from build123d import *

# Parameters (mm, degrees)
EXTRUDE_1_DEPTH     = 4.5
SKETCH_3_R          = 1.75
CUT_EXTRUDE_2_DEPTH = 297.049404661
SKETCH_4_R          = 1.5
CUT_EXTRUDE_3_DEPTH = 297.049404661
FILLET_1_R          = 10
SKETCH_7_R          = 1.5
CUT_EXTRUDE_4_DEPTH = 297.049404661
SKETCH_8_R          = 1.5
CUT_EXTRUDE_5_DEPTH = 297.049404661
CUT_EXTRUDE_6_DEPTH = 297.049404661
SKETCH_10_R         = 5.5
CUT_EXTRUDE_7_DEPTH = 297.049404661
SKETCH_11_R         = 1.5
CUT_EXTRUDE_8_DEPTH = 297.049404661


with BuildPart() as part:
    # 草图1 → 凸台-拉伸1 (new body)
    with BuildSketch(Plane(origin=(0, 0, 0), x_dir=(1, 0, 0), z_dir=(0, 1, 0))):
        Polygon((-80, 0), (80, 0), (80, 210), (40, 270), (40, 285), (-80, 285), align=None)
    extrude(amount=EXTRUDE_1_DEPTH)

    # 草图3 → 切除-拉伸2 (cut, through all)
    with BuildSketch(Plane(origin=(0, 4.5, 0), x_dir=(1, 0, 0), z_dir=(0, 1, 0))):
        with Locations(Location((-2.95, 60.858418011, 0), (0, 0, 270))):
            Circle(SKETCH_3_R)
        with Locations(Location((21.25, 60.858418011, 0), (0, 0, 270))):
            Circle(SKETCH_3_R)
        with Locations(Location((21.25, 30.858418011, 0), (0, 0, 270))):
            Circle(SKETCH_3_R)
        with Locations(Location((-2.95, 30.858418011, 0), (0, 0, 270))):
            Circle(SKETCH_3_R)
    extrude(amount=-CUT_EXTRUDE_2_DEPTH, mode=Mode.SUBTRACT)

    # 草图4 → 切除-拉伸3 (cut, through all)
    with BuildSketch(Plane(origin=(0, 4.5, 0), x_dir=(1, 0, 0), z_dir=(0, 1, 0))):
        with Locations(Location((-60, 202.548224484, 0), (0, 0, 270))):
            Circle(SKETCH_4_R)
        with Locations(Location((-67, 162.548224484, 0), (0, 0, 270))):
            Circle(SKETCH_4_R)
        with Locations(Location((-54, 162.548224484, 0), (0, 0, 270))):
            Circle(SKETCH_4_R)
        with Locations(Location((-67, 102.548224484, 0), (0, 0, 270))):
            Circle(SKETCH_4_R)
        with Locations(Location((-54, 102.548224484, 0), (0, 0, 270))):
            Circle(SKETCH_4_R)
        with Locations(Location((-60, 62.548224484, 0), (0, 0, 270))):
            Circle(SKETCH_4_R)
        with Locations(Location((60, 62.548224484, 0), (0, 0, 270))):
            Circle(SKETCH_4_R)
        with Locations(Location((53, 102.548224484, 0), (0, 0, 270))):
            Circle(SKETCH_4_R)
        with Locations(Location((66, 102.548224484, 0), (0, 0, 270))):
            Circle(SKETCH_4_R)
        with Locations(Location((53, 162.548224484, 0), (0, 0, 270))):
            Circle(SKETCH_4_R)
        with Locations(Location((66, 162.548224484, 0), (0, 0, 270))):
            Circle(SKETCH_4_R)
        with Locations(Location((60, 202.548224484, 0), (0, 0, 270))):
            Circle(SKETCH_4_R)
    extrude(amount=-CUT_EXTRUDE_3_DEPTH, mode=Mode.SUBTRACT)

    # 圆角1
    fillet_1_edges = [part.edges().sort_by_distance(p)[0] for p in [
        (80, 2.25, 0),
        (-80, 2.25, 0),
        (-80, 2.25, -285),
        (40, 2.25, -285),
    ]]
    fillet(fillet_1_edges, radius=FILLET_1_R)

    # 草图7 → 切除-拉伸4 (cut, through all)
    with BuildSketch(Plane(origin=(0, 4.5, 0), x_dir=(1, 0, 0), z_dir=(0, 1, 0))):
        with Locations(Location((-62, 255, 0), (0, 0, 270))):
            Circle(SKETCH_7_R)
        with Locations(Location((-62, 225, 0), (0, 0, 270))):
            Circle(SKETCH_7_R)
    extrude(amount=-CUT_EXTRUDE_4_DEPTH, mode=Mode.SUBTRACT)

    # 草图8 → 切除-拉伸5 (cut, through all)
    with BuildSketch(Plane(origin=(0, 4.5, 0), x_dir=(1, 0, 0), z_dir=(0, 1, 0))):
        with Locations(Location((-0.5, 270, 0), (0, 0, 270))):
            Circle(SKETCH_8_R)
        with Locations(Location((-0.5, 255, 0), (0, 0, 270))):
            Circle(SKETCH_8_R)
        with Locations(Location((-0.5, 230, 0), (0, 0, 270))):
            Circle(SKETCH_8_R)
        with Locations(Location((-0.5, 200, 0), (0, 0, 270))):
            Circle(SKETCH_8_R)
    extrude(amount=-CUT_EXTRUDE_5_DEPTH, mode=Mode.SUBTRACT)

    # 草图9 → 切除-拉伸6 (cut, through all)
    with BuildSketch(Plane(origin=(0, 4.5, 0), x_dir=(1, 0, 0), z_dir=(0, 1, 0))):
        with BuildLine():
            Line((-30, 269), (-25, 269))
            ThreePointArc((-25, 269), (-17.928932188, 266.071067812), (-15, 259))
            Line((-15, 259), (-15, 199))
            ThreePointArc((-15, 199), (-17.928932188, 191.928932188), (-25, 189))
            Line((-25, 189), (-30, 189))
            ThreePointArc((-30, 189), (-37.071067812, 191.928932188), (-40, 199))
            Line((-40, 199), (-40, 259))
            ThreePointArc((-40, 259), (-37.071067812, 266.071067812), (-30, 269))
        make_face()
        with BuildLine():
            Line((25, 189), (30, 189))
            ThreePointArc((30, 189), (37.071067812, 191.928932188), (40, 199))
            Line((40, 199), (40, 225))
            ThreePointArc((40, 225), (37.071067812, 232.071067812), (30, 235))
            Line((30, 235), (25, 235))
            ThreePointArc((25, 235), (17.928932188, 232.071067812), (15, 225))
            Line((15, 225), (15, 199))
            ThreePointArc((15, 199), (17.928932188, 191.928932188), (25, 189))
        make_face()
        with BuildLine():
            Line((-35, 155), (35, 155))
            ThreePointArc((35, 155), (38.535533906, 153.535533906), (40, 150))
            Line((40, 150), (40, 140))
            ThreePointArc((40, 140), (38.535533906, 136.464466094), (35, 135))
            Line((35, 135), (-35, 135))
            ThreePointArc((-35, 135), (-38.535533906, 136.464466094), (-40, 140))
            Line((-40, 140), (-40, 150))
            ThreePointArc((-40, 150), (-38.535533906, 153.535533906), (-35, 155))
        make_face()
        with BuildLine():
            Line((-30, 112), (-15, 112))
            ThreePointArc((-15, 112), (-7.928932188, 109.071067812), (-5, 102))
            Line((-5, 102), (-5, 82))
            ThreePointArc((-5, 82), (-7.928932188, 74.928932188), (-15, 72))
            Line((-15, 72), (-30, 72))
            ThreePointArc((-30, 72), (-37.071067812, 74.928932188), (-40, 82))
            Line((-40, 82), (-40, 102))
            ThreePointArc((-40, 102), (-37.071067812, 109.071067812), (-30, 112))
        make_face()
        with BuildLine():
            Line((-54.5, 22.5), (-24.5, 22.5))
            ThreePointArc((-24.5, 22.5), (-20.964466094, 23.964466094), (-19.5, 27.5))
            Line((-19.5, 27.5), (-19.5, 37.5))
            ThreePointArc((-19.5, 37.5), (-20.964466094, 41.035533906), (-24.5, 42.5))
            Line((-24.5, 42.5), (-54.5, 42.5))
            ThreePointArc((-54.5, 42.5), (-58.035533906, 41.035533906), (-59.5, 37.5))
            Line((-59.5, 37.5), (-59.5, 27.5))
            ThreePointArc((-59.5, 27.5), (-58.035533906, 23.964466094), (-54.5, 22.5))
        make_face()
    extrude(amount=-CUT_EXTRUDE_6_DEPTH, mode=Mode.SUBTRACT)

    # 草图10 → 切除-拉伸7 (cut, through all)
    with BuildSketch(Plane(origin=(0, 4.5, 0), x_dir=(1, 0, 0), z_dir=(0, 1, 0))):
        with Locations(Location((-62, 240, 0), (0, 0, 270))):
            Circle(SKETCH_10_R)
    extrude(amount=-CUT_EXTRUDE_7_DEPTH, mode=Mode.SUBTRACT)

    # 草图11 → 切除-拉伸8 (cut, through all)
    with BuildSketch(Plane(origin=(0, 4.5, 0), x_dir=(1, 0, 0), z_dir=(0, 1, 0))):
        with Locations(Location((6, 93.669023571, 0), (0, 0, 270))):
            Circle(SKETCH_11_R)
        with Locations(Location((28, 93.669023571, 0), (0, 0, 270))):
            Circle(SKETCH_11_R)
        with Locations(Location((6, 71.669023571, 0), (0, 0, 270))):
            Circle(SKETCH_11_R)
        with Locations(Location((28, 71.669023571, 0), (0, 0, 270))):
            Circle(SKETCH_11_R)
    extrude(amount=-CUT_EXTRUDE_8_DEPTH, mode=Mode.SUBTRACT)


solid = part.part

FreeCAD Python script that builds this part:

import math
import FreeCAD as App
import Part
import Sketcher

V = App.Vector


def edges_at(feature, points):
    """Names of the edges that pass closest to the given points."""
    edges = feature.Shape.Edges
    near = lambda p: min(range(len(edges)), key=lambda i: edges[i].distToShape(Part.Vertex(*p))[0])
    return sorted({f"Edge{near(p) + 1}" for p in points})


def add_polygon(sketch, points):
    """Adds a closed chain of lines whose ends are joined by coincident constraints."""
    first, n = sketch.GeometryCount, len(points)
    for a, b in zip(points, points[1:] + points[:1]):
        sketch.addGeometry(Part.LineSegment(App.Vector(*a, 0), App.Vector(*b, 0)), False)
    for i in range(n):
        sketch.addConstraint(Sketcher.Constraint("Coincident", first + i, 2, first + (i + 1) % n, 1))

doc = App.newDocument("Part")
body = doc.addObject("PartDesign::Body", "Body")

# Sketch on XZ plane
sketch1 = body.newObject("Sketcher::SketchObject", "Sketch")
sketch1.AttachmentSupport = (doc.getObject("XZ_Plane"), [""])
sketch1.MapMode = "FlatFace"
add_polygon(sketch1, [(-80, 0), (80, 0), (80, -210), (40, -270), (40, -285), (-80, -285)])  # lines 0-5
sketch1.addConstraint([
    Sketcher.Constraint("Horizontal", 0),
    Sketcher.Constraint("Vertical", 1),
    Sketcher.Constraint("Vertical", 3),
    Sketcher.Constraint("Horizontal", 4),
    Sketcher.Constraint("Vertical", 5),
    Sketcher.Constraint("Symmetric", 0, 2, 5, 2, -1, 1),
    Sketcher.Constraint("DistanceX", 0, 1, 0, 2, 160.0),
    Sketcher.Constraint("DistanceX", 4, 2, 4, 1, 120.0),
    Sketcher.Constraint("DistanceY", 1, 2, 1, 1, 210.0),
    Sketcher.Constraint("DistanceY", 3, 2, 3, 1, 15.0),
    Sketcher.Constraint("DistanceY", 5, 1, 5, 2, 285.0),
])
pad1 = body.newObject("PartDesign::Pad", "Pad")
pad1.Profile = sketch1
pad1.Length = 4.5
pad1.Reversed = True

# Sketch on XZ plane
sketch2 = body.newObject("Sketcher::SketchObject", "Sketch001")
sketch2.AttachmentSupport = (doc.getObject("XZ_Plane"), [""])
sketch2.MapMode = "FlatFace"
sketch2.AttachmentOffset = App.Placement(V(0, 0, -4.5), App.Rotation())
sketch2.addGeometry([
    Part.Circle(V(-2.95, -60.858418, 0), V(0, 0, 1), 1.75),
    Part.Circle(V(21.25, -60.858418, 0), V(0, 0, 1), 1.75),
    Part.Circle(V(21.25, -30.858418, 0), V(0, 0, 1), 1.75),
    Part.Circle(V(-2.95, -30.858418, 0), V(0, 0, 1), 1.75),
], False)
sketch2.addConstraint([
    Sketcher.Constraint("Equal", 0, 1),
    Sketcher.Constraint("Equal", 1, 2),
    Sketcher.Constraint("Equal", 2, 3),
    Sketcher.Constraint("Horizontal", 0, 3, 1, 3),
    Sketcher.Constraint("Horizontal", 2, 3, 3, 3),
    Sketcher.Constraint("Vertical", 1, 3, 2, 3),
    Sketcher.Constraint("Vertical", 0, 3, 3, 3),
    Sketcher.Constraint("Diameter", 0, 3.5),
    Sketcher.Constraint("DistanceY", 1, 3, 2, 3, 30.0),
    Sketcher.Constraint("DistanceX", 0, 3, 1, 3, 24.2),
    Sketcher.Constraint("DistanceX", 0, 3, -1, 1, 2.95),
    Sketcher.Constraint("DistanceY", 0, 3, -1, 1, 60.858418),
])
pocket1 = body.newObject("PartDesign::Pocket", "Pocket")
pocket1.Profile = sketch2
pocket1.Type = "ThroughAll"
pocket1.Reversed = True

# Sketch on XZ plane
sketch3 = body.newObject("Sketcher::SketchObject", "Sketch002")
sketch3.AttachmentSupport = (doc.getObject("XZ_Plane"), [""])
sketch3.MapMode = "FlatFace"
sketch3.AttachmentOffset = App.Placement(V(0, 0, -4.5), App.Rotation())
sketch3.addGeometry([
    Part.Circle(V(-60, -202.548224, 0), V(0, 0, 1), 1.5),  # 0
    Part.Circle(V(-67, -162.548224, 0), V(0, 0, 1), 1.5),  # 1
    Part.Circle(V(-54, -162.548224, 0), V(0, 0, 1), 1.5),  # 2
    Part.Circle(V(-67, -102.548224, 0), V(0, 0, 1), 1.5),  # 3
    Part.Circle(V(-54, -102.548224, 0), V(0, 0, 1), 1.5),  # 4
    Part.Circle(V(-60, -62.548224, 0), V(0, 0, 1), 1.5),  # 5
    Part.Circle(V(60, -62.548224, 0), V(0, 0, 1), 1.5),  # 6
    Part.Circle(V(53, -102.548224, 0), V(0, 0, 1), 1.5),  # 7
    Part.Circle(V(66, -102.548224, 0), V(0, 0, 1), 1.5),  # 8
    Part.Circle(V(53, -162.548224, 0), V(0, 0, 1), 1.5),  # 9
    Part.Circle(V(66, -162.548224, 0), V(0, 0, 1), 1.5),  # 10
    Part.Circle(V(60, -202.548224, 0), V(0, 0, 1), 1.5),  # 11
], False)
sketch3.addConstraint([
    Sketcher.Constraint("Equal", 0, 1),
    Sketcher.Constraint("Equal", 1, 2),
    Sketcher.Constraint("Equal", 2, 3),
    Sketcher.Constraint("Equal", 3, 4),
    Sketcher.Constraint("Equal", 4, 5),
    Sketcher.Constraint("Equal", 5, 6),
    Sketcher.Constraint("Equal", 6, 7),
    Sketcher.Constraint("Equal", 7, 8),
    Sketcher.Constraint("Equal", 8, 9),
    Sketcher.Constraint("Equal", 9, 10),
    Sketcher.Constraint("Equal", 10, 11),
    Sketcher.Constraint("Symmetric", 5, 3, 6, 3, -2),
    Sketcher.Constraint("Symmetric", 0, 3, 11, 3, -2),
    Sketcher.Constraint("Horizontal", 1, 3, 2, 3),
    Sketcher.Constraint("Horizontal", 3, 3, 4, 3),
    Sketcher.Constraint("Horizontal", 4, 3, 7, 3),
    Sketcher.Constraint("Horizontal", 7, 3, 8, 3),
    Sketcher.Constraint("Horizontal", 2, 3, 9, 3),
    Sketcher.Constraint("Horizontal", 9, 3, 10, 3),
    Sketcher.Constraint("Vertical", 1, 3, 3, 3),
    Sketcher.Constraint("Vertical", 2, 3, 4, 3),
    Sketcher.Constraint("Vertical", 0, 3, 5, 3),
    Sketcher.Constraint("Vertical", 7, 3, 9, 3),
    Sketcher.Constraint("Vertical", 8, 3, 10, 3),
    Sketcher.Constraint("Diameter", 0, 3.0),
    Sketcher.Constraint("DistanceX", 0, 3, -1, 1, 60.0),
    Sketcher.Constraint("DistanceX", 1, 3, -1, 1, 67.0),
    Sketcher.Constraint("DistanceX", 2, 3, -1, 1, 54.0),
    Sketcher.Constraint("DistanceX", -1, 1, 7, 3, 53.0),
    Sketcher.Constraint("DistanceX", -1, 1, 8, 3, 66.0),
    Sketcher.Constraint("DistanceY", 0, 3, 1, 3, 40.0),
    Sketcher.Constraint("DistanceY", 1, 3, 3, 3, 60.0),
    Sketcher.Constraint("DistanceY", 4, 3, 5, 3, 40.0),
    Sketcher.Constraint("DistanceY", 0, 3, -1, 1, 202.548224),
])
pocket2 = body.newObject("PartDesign::Pocket", "Pocket001")
pocket2.Profile = sketch3
pocket2.Type = "ThroughAll"
pocket2.Reversed = True
doc.recompute()

fillet = body.newObject("PartDesign::Fillet", "Fillet")
fillet.Base = (pocket2, edges_at(pocket2, [
    (80, 2.25, 0),
    (-80, 2.25, 0),
    (-80, 2.25, -285),
    (40, 2.25, -285),
]))
fillet.Radius = 10

# Sketch on XZ plane
sketch4 = body.newObject("Sketcher::SketchObject", "Sketch003")
sketch4.AttachmentSupport = (doc.getObject("XZ_Plane"), [""])
sketch4.MapMode = "FlatFace"
sketch4.AttachmentOffset = App.Placement(V(0, 0, -4.5), App.Rotation())
sketch4.addGeometry([
    Part.Circle(V(-62, -255, 0), V(0, 0, 1), 1.5),
    Part.Circle(V(-62, -225, 0), V(0, 0, 1), 1.5),
], False)
sketch4.addConstraint([
    Sketcher.Constraint("Equal", 0, 1),
    Sketcher.Constraint("Vertical", 0, 3, 1, 3),
    Sketcher.Constraint("Diameter", 0, 3.0),
    Sketcher.Constraint("DistanceX", 0, 3, -1, 1, 62.0),
    Sketcher.Constraint("DistanceY", 0, 3, -1, 1, 255.0),
    Sketcher.Constraint("DistanceY", 1, 3, -1, 1, 225.0),
])
pocket3 = body.newObject("PartDesign::Pocket", "Pocket002")
pocket3.Profile = sketch4
pocket3.Type = "ThroughAll"
pocket3.Reversed = True

# Sketch on XZ plane
sketch5 = body.newObject("Sketcher::SketchObject", "Sketch004")
sketch5.AttachmentSupport = (doc.getObject("XZ_Plane"), [""])
sketch5.MapMode = "FlatFace"
sketch5.AttachmentOffset = App.Placement(V(0, 0, -4.5), App.Rotation())
sketch5.addGeometry([
    Part.Circle(V(-0.5, -270, 0), V(0, 0, 1), 1.5),
    Part.Circle(V(-0.5, -255, 0), V(0, 0, 1), 1.5),
    Part.Circle(V(-0.5, -230, 0), V(0, 0, 1), 1.5),
    Part.Circle(V(-0.5, -200, 0), V(0, 0, 1), 1.5),
], False)
sketch5.addConstraint([
    Sketcher.Constraint("Equal", 0, 1),
    Sketcher.Constraint("Equal", 1, 2),
    Sketcher.Constraint("Equal", 2, 3),
    Sketcher.Constraint("Vertical", 0, 3, 1, 3),
    Sketcher.Constraint("Vertical", 1, 3, 2, 3),
    Sketcher.Constraint("Vertical", 2, 3, 3, 3),
    Sketcher.Constraint("Diameter", 0, 3.0),
    Sketcher.Constraint("DistanceY", 0, 3, -1, 1, 270.0),
    Sketcher.Constraint("DistanceY", 1, 3, -1, 1, 255.0),
    Sketcher.Constraint("DistanceY", 2, 3, -1, 1, 230.0),
    Sketcher.Constraint("DistanceY", 3, 3, -1, 1, 200.0),
    Sketcher.Constraint("DistanceX", 0, 3, -1, 1, 0.5),
])
pocket4 = body.newObject("PartDesign::Pocket", "Pocket003")
pocket4.Profile = sketch5
pocket4.Type = "ThroughAll"
pocket4.Reversed = True

# Sketch on XZ plane
sketch6 = body.newObject("Sketcher::SketchObject", "Sketch005")
sketch6.AttachmentSupport = (doc.getObject("XZ_Plane"), [""])
sketch6.MapMode = "FlatFace"
sketch6.AttachmentOffset = App.Placement(V(0, 0, -4.5), App.Rotation())
sketch6.addGeometry([
    Part.LineSegment(V(-25, -269, 0), V(-30, -269, 0)),  # 0
    Part.ArcOfCircle(Part.Circle(V(-30, -259, 0), V(0, 0, 1), 10), math.radians(180), math.radians(270)),  # 1
    Part.LineSegment(V(-40, -259, 0), V(-40, -199, 0)),  # 2
    Part.ArcOfCircle(Part.Circle(V(-30, -199, 0), V(0, 0, 1), 10), math.radians(90), math.radians(180)),  # 3
    Part.LineSegment(V(-30, -189, 0), V(-25, -189, 0)),  # 4
    Part.ArcOfCircle(Part.Circle(V(-25, -199, 0), V(0, 0, 1), 10), math.radians(0), math.radians(90)),  # 5
    Part.LineSegment(V(-15, -199, 0), V(-15, -259, 0)),  # 6
    Part.ArcOfCircle(Part.Circle(V(-25, -259, 0), V(0, 0, 1), 10), math.radians(-90), math.radians(0)),  # 7
    Part.LineSegment(V(25, -189, 0), V(30, -189, 0)),  # 8
    Part.ArcOfCircle(Part.Circle(V(30, -199, 0), V(0, 0, 1), 10), math.radians(0), math.radians(90)),  # 9
    Part.LineSegment(V(40, -199, 0), V(40, -225, 0)),  # 10
    Part.ArcOfCircle(Part.Circle(V(30, -225, 0), V(0, 0, 1), 10), math.radians(-90), math.radians(0)),  # 11
    Part.LineSegment(V(30, -235, 0), V(25, -235, 0)),  # 12
    Part.ArcOfCircle(Part.Circle(V(25, -225, 0), V(0, 0, 1), 10), math.radians(180), math.radians(270)),  # 13
    Part.LineSegment(V(15, -225, 0), V(15, -199, 0)),  # 14
    Part.ArcOfCircle(Part.Circle(V(25, -199, 0), V(0, 0, 1), 10), math.radians(90), math.radians(180)),  # 15
    Part.LineSegment(V(35, -155, 0), V(-35, -155, 0)),  # 16
    Part.ArcOfCircle(Part.Circle(V(-35, -150, 0), V(0, 0, 1), 5), math.radians(180), math.radians(270)),  # 17
    Part.LineSegment(V(-40, -150, 0), V(-40, -140, 0)),  # 18
    Part.ArcOfCircle(Part.Circle(V(-35, -140, 0), V(0, 0, 1), 5), math.radians(90), math.radians(180)),  # 19
    Part.LineSegment(V(-35, -135, 0), V(35, -135, 0)),  # 20
    Part.ArcOfCircle(Part.Circle(V(35, -140, 0), V(0, 0, 1), 5), math.radians(0), math.radians(90)),  # 21
    Part.LineSegment(V(40, -140, 0), V(40, -150, 0)),  # 22
    Part.ArcOfCircle(Part.Circle(V(35, -150, 0), V(0, 0, 1), 5), math.radians(-90), math.radians(0)),  # 23
    Part.LineSegment(V(-15, -112, 0), V(-30, -112, 0)),  # 24
    Part.ArcOfCircle(Part.Circle(V(-30, -102, 0), V(0, 0, 1), 10), math.radians(180), math.radians(270)),  # 25
    Part.LineSegment(V(-40, -102, 0), V(-40, -82, 0)),  # 26
    Part.ArcOfCircle(Part.Circle(V(-30, -82, 0), V(0, 0, 1), 10), math.radians(90), math.radians(180)),  # 27
    Part.LineSegment(V(-30, -72, 0), V(-15, -72, 0)),  # 28
    Part.ArcOfCircle(Part.Circle(V(-15, -82, 0), V(0, 0, 1), 10), math.radians(0), math.radians(90)),  # 29
    Part.LineSegment(V(-5, -82, 0), V(-5, -102, 0)),  # 30
    Part.ArcOfCircle(Part.Circle(V(-15, -102, 0), V(0, 0, 1), 10), math.radians(-90), math.radians(0)),  # 31
    Part.LineSegment(V(-54.5, -22.5, 0), V(-24.5, -22.5, 0)),  # 32
    Part.ArcOfCircle(Part.Circle(V(-24.5, -27.5, 0), V(0, 0, 1), 5), math.radians(0), math.radians(90)),  # 33
    Part.LineSegment(V(-19.5, -27.5, 0), V(-19.5, -37.5, 0)),  # 34
    Part.ArcOfCircle(Part.Circle(V(-24.5, -37.5, 0), V(0, 0, 1), 5), math.radians(-90), math.radians(0)),  # 35
    Part.LineSegment(V(-24.5, -42.5, 0), V(-54.5, -42.5, 0)),  # 36
    Part.ArcOfCircle(Part.Circle(V(-54.5, -37.5, 0), V(0, 0, 1), 5), math.radians(180), math.radians(270)),  # 37
    Part.LineSegment(V(-59.5, -37.5, 0), V(-59.5, -27.5, 0)),  # 38
    Part.ArcOfCircle(Part.Circle(V(-54.5, -27.5, 0), V(0, 0, 1), 5), math.radians(90), math.radians(180)),  # 39
], False)
sketch6.addConstraint([
    Sketcher.Constraint("Tangent", 0, 2, 1, 2),
    Sketcher.Constraint("Tangent", 1, 1, 2, 1),
    Sketcher.Constraint("Tangent", 2, 2, 3, 2),
    Sketcher.Constraint("Tangent", 3, 1, 4, 1),
    Sketcher.Constraint("Tangent", 4, 2, 5, 2),
    Sketcher.Constraint("Tangent", 5, 1, 6, 1),
    Sketcher.Constraint("Tangent", 6, 2, 7, 2),
    Sketcher.Constraint("Tangent", 7, 1, 0, 1),
    Sketcher.Constraint("Tangent", 8, 2, 9, 2),
    Sketcher.Constraint("Tangent", 9, 1, 10, 1),
    Sketcher.Constraint("Tangent", 10, 2, 11, 2),
    Sketcher.Constraint("Tangent", 11, 1, 12, 1),
    Sketcher.Constraint("Tangent", 12, 2, 13, 2),
    Sketcher.Constraint("Tangent", 13, 1, 14, 1),
    Sketcher.Constraint("Tangent", 14, 2, 15, 2),
    Sketcher.Constraint("Tangent", 15, 1, 8, 1),
    Sketcher.Constraint("Tangent", 16, 2, 17, 2),
    Sketcher.Constraint("Tangent", 17, 1, 18, 1),
    Sketcher.Constraint("Tangent", 18, 2, 19, 2),
    Sketcher.Constraint("Tangent", 19, 1, 20, 1),
    Sketcher.Constraint("Tangent", 20, 2, 21, 2),
    Sketcher.Constraint("Tangent", 21, 1, 22, 1),
    Sketcher.Constraint("Tangent", 22, 2, 23, 2),
    Sketcher.Constraint("Tangent", 23, 1, 16, 1),
    Sketcher.Constraint("Tangent", 24, 2, 25, 2),
    Sketcher.Constraint("Tangent", 25, 1, 26, 1),
    Sketcher.Constraint("Tangent", 26, 2, 27, 2),
    Sketcher.Constraint("Tangent", 27, 1, 28, 1),
    Sketcher.Constraint("Tangent", 28, 2, 29, 2),
    Sketcher.Constraint("Tangent", 29, 1, 30, 1),
    Sketcher.Constraint("Tangent", 30, 2, 31, 2),
    Sketcher.Constraint("Tangent", 31, 1, 24, 1),
    Sketcher.Constraint("Tangent", 32, 2, 33, 2),
    Sketcher.Constraint("Tangent", 33, 1, 34, 1),
    Sketcher.Constraint("Tangent", 34, 2, 35, 2),
    Sketcher.Constraint("Tangent", 35, 1, 36, 1),
    Sketcher.Constraint("Tangent", 36, 2, 37, 2),
    Sketcher.Constraint("Tangent", 37, 1, 38, 1),
    Sketcher.Constraint("Tangent", 38, 2, 39, 2),
    Sketcher.Constraint("Tangent", 39, 1, 32, 1),
    Sketcher.Constraint("Horizontal", 0),
    Sketcher.Constraint("Vertical", 2),
    Sketcher.Constraint("Horizontal", 4),
    Sketcher.Constraint("Vertical", 6),
    Sketcher.Constraint("Horizontal", 8),
    Sketcher.Constraint("Vertical", 10),
    Sketcher.Constraint("Horizontal", 12),
    Sketcher.Constraint("Vertical", 14),
    Sketcher.Constraint("Horizontal", 16),
    Sketcher.Constraint("Vertical", 18),
    Sketcher.Constraint("Horizontal", 20),
    Sketcher.Constraint("Vertical", 22),
    Sketcher.Constraint("Horizontal", 24),
    Sketcher.Constraint("Vertical", 26),
    Sketcher.Constraint("Horizontal", 28),
    Sketcher.Constraint("Vertical", 30),
    Sketcher.Constraint("Horizontal", 32),
    Sketcher.Constraint("Vertical", 34),
    Sketcher.Constraint("Horizontal", 36),
    Sketcher.Constraint("Vertical", 38),
    Sketcher.Constraint("Equal", 1, 3),
    Sketcher.Constraint("Equal", 3, 5),
    Sketcher.Constraint("Equal", 5, 7),
    Sketcher.Constraint("Equal", 7, 9),
    Sketcher.Constraint("Equal", 9, 11),
    Sketcher.Constraint("Equal", 11, 13),
    Sketcher.Constraint("Equal", 13, 15),
    Sketcher.Constraint("Equal", 17, 19),
    Sketcher.Constraint("Equal", 19, 21),
    Sketcher.Constraint("Equal", 21, 23),
    Sketcher.Constraint("Equal", 15, 25),
    Sketcher.Constraint("Equal", 25, 27),
    Sketcher.Constraint("Equal", 27, 29),
    Sketcher.Constraint("Equal", 29, 31),
    Sketcher.Constraint("Equal", 23, 33),
    Sketcher.Constraint("Equal", 33, 35),
    Sketcher.Constraint("Equal", 35, 37),
    Sketcher.Constraint("Equal", 37, 39),
    Sketcher.Constraint("Symmetric", 3, 3, 9, 3, -2),
    Sketcher.Constraint("Vertical", 3, 3, 25, 3),
    Sketcher.Constraint("Vertical", 31, 3, 5, 1),
    Sketcher.Constraint("Vertical", 2, 2, 17, 1),
    Sketcher.Constraint("Vertical", 10, 2, 21, 1),
    Sketcher.Constraint("Equal", 4, 8),
    Sketcher.Constraint("Equal", 22, 34),
    Sketcher.Constraint("Radius", 1, 10.0),
    Sketcher.Constraint("Radius", 17, 5.0),
    Sketcher.Constraint("DistanceX", 0, 2, 0, 1, 5.0),
    Sketcher.Constraint("DistanceX", 16, 2, 16, 1, 70.0),
    Sketcher.Constraint("DistanceX", 32, 1, 32, 2, 30.0),
    Sketcher.Constraint("DistanceY", 2, 1, 2, 2, 60.0),
    Sketcher.Constraint("DistanceY", 10, 2, 10, 1, 26.0),
    Sketcher.Constraint("DistanceY", 18, 1, 18, 2, 10.0),
    Sketcher.Constraint("DistanceY", 26, 1, 26, 2, 20.0),
    Sketcher.Constraint("DistanceY", 1, 3, -1, 1, 259.0),
    Sketcher.Constraint("DistanceY", 17, 3, -1, 1, 150.0),
    Sketcher.Constraint("DistanceY", 25, 3, -1, 1, 102.0),
    Sketcher.Constraint("DistanceX", 33, 3, -1, 1, 24.5),
    Sketcher.Constraint("DistanceY", 33, 3, -1, 1, 27.5),
])
pocket5 = body.newObject("PartDesign::Pocket", "Pocket004")
pocket5.Profile = sketch6
pocket5.Type = "ThroughAll"
pocket5.Reversed = True

# Sketch on XZ plane
sketch7 = body.newObject("Sketcher::SketchObject", "Sketch006")
sketch7.AttachmentSupport = (doc.getObject("XZ_Plane"), [""])
sketch7.MapMode = "FlatFace"
sketch7.AttachmentOffset = App.Placement(V(0, 0, -4.5), App.Rotation())
sketch7.addGeometry(Part.Circle(V(-62, -240, 0), V(0, 0, 1), 5.5), False)
sketch7.addConstraint([
    Sketcher.Constraint("Diameter", 0, 11.0),
    Sketcher.Constraint("DistanceX", 0, 3, -1, 1, 62.0),
    Sketcher.Constraint("DistanceY", 0, 3, -1, 1, 240.0),
])
pocket6 = body.newObject("PartDesign::Pocket", "Pocket005")
pocket6.Profile = sketch7
pocket6.Type = "ThroughAll"
pocket6.Reversed = True

# Sketch on XZ plane
sketch8 = body.newObject("Sketcher::SketchObject", "Sketch007")
sketch8.AttachmentSupport = (doc.getObject("XZ_Plane"), [""])
sketch8.MapMode = "FlatFace"
sketch8.AttachmentOffset = App.Placement(V(0, 0, -4.5), App.Rotation())
sketch8.addGeometry([
    Part.Circle(V(6, -93.669024, 0), V(0, 0, 1), 1.5),
    Part.Circle(V(28, -93.669024, 0), V(0, 0, 1), 1.5),
    Part.Circle(V(6, -71.669024, 0), V(0, 0, 1), 1.5),
    Part.Circle(V(28, -71.669024, 0), V(0, 0, 1), 1.5),
], False)
sketch8.addConstraint([
    Sketcher.Constraint("Equal", 0, 1),
    Sketcher.Constraint("Equal", 1, 2),
    Sketcher.Constraint("Equal", 2, 3),
    Sketcher.Constraint("Horizontal", 0, 3, 1, 3),
    Sketcher.Constraint("Horizontal", 2, 3, 3, 3),
    Sketcher.Constraint("Vertical", 0, 3, 2, 3),
    Sketcher.Constraint("Vertical", 1, 3, 3, 3),
    Sketcher.Constraint("Diameter", 0, 3.0),
    Sketcher.Constraint("DistanceX", -1, 1, 0, 3, 6.0),
    Sketcher.Constraint("DistanceX", -1, 1, 1, 3, 28.0),
    Sketcher.Constraint("DistanceY", 0, 3, 2, 3, 22.0),
    Sketcher.Constraint("DistanceY", 0, 3, -1, 1, 93.669024),
])
pocket7 = body.newObject("PartDesign::Pocket", "Pocket006")
pocket7.Profile = sketch8
pocket7.Type = "ThroughAll"
pocket7.Reversed = True

doc.recompute()
